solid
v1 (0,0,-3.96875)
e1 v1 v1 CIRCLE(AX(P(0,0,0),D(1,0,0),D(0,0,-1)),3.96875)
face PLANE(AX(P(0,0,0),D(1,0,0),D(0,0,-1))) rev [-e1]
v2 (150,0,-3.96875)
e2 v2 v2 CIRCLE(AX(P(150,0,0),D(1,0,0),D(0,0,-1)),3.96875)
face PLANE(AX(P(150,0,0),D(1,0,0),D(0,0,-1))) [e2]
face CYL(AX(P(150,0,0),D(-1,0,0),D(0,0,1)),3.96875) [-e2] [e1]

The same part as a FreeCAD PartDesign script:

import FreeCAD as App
import Part
import Sketcher

V = App.Vector
Q = App.Units.Quantity

doc = App.newDocument("Part")
body = doc.addObject("PartDesign::Body", "Body")

# Sketch on YZ plane
sketch1 = body.newObject("Sketcher::SketchObject", "Sketch")
sketch1.AttachmentSupport = (doc.getObject("YZ_Plane"), [""])
sketch1.MapMode = "FlatFace"
sketch1.addGeometry(Part.Circle(V(0, 0, 0), V(0, 0, 1), 3.96875), False)
sketch1.addConstraint(Sketcher.Constraint("Coincident", 0, 3, -1, 1))
sketch1.addConstraint(Sketcher.Constraint("Diameter", 0, Q("7.9375 mm")))
pad1 = body.newObject("PartDesign::Pad", "Pad")
pad1.Profile = sketch1
pad1.Length = 150

doc.recompute()
